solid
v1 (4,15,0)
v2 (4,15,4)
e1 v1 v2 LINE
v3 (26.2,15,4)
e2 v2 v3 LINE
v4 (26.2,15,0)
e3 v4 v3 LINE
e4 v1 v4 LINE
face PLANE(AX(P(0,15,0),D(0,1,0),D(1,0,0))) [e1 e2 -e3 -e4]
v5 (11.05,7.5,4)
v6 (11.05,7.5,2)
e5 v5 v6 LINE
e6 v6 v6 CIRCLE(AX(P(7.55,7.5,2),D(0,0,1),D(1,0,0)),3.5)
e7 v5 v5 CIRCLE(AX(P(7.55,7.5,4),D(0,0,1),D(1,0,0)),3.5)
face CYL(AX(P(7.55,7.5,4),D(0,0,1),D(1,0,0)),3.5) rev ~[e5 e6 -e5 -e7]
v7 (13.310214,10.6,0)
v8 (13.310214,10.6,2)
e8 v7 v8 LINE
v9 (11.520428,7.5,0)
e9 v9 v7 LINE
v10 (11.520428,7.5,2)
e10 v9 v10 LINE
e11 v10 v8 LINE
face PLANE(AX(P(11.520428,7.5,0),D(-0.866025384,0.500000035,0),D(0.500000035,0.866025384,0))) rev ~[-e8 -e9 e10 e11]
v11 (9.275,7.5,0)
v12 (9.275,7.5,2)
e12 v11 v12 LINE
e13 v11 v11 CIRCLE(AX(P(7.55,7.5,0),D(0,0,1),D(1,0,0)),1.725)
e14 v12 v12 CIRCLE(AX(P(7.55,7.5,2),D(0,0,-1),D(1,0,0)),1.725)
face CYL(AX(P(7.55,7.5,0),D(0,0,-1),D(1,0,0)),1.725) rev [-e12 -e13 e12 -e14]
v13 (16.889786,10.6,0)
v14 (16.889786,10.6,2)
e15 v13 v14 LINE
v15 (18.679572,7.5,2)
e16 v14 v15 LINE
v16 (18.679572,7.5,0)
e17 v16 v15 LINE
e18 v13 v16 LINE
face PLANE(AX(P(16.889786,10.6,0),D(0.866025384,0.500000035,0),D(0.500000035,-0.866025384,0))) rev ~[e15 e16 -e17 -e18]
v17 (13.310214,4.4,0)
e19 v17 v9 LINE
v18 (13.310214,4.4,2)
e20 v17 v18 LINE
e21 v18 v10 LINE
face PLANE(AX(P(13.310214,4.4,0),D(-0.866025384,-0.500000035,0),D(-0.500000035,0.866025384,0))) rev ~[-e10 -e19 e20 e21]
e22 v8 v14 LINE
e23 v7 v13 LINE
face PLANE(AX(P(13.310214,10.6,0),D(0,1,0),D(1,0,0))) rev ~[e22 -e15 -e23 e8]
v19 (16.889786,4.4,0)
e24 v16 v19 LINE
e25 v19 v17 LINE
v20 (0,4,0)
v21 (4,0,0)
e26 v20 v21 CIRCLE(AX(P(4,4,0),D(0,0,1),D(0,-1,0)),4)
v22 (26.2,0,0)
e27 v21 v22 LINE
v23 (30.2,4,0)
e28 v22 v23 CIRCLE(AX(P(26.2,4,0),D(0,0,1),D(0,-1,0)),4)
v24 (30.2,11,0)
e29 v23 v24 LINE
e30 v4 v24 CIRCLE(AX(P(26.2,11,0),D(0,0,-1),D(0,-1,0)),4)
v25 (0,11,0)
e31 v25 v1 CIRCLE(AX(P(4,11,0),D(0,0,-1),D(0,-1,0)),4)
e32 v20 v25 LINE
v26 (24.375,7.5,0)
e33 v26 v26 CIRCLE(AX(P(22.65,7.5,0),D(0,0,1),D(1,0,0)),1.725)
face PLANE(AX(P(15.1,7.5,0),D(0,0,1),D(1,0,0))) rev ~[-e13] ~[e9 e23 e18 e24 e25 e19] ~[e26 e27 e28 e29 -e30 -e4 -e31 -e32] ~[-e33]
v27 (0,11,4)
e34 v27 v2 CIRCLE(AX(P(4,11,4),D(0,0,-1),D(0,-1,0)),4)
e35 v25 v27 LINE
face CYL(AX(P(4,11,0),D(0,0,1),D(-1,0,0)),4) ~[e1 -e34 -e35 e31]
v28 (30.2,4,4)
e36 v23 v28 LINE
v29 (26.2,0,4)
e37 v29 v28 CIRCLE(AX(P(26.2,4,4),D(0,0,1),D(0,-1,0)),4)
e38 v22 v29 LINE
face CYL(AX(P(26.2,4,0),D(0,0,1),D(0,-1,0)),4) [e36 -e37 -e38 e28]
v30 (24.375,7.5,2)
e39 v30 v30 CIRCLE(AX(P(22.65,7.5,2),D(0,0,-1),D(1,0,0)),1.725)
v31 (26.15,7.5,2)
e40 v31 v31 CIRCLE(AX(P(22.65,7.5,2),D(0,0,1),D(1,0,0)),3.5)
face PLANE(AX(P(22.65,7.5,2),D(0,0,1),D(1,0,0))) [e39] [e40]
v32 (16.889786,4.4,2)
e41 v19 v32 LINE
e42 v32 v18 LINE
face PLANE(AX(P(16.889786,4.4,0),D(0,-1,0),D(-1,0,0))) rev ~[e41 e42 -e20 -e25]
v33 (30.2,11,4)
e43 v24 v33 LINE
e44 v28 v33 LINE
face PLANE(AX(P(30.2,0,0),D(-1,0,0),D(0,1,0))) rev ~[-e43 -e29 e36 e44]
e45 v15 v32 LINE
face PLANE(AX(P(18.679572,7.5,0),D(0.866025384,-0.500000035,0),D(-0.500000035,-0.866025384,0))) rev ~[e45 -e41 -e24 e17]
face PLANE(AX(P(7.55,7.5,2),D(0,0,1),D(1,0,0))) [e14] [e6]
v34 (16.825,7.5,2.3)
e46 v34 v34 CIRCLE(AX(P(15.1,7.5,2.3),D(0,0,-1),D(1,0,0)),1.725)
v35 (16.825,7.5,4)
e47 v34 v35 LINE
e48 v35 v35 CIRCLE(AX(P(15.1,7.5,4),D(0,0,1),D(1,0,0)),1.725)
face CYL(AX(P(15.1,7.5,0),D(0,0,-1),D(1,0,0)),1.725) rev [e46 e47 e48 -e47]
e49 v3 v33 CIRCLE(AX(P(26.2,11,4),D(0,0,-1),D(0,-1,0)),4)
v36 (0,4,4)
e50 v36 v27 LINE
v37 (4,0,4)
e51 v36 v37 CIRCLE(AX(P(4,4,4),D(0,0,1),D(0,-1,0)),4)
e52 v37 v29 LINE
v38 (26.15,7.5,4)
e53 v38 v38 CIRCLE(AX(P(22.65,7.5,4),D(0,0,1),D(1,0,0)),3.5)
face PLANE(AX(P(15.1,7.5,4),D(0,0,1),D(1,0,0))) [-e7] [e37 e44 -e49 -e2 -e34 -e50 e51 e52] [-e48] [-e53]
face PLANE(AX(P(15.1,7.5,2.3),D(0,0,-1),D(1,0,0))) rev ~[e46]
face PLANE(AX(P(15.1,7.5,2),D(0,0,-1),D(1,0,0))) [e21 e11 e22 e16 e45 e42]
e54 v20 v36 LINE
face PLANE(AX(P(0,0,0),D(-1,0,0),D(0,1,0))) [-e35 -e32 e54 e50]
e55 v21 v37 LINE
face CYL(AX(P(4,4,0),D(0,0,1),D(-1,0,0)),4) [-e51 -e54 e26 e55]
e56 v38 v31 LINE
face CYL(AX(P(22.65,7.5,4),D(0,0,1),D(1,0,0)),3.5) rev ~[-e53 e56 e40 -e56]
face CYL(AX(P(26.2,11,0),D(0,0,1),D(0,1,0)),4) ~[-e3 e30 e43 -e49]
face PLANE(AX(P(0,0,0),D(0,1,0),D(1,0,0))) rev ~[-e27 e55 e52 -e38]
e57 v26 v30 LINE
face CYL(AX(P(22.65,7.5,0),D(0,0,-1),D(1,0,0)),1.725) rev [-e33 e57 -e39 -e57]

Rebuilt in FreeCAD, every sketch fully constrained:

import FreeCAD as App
import Part
import Sketcher
Q = App.Units.Quantity


def edges_at(feature, points):
    """Names of the edges that pass closest to the given points."""
    edges = feature.Shape.Edges
    near = lambda p: min(range(len(edges)), key=lambda i: edges[i].distToShape(Part.Vertex(*p))[0])
    return sorted({f"Edge{near(p) + 1}" for p in points})

doc = App.newDocument("Part")
params = doc.addObject("Spreadsheet::Sheet", "Params")
for row, (alias, value) in enumerate([
    ("sketch1_diameter", "3.45 mm"),
    ("sketch1_height", "15 mm"),
    ("sketch1_width", "30.2 mm"),
    ("pad1_length", "4 mm"),
    ("sketch2_diameter", "7 mm"),
    ("pocket1_length", "2 mm"),
    ("pocket2_length", "2 mm"),
    ("sketch4_diameter", "3.5 mm"),
    ("pad2_length", "0.3 mm"),
    ("fillet_radius", "4 mm"),
], start=1):
    params.set(f"A{row}", alias)
    params.set(f"B{row}", "=" + value)
    params.setAlias(f"B{row}", alias)

body = doc.addObject("PartDesign::Body", "Body")

# Sketch on XY plane
sketch1 = body.newObject("Sketcher::SketchObject", "Sketch")
sketch1.AttachmentSupport = (doc.getObject("XY_Plane"), [""])
sketch1.MapMode = "FlatFace"
sketch1.addGeometry(Part.LineSegment(App.Vector(0, 15, 0), App.Vector(0, 0, 0)), False)
sketch1.addGeometry(Part.LineSegment(App.Vector(0, 0, 0), App.Vector(30.2, 0, 0)), False)
sketch1.addGeometry(Part.LineSegment(App.Vector(30.2, 0, 0), App.Vector(30.2, 15, 0)), False)
sketch1.addGeometry(Part.LineSegment(App.Vector(30.2, 15, 0), App.Vector(0, 15, 0)), False)
sketch1.addGeometry(Part.Circle(App.Vector(7.5, 7.5, 0), App.Vector(0, 0, 1), 1.7), False)
sketch1.addGeometry(Part.Circle(App.Vector(15.1, 7.5, 0), App.Vector(0, 0, 1), 1.7), False)
sketch1.addGeometry(Part.Circle(App.Vector(22.6, 7.5, 0), App.Vector(0, 0, 1), 1.7), False)
sketch1.addConstraint(Sketcher.Constraint("Coincident", 0, 2, 1, 1))
sketch1.addConstraint(Sketcher.Constraint("Coincident", 1, 2, 2, 1))
sketch1.addConstraint(Sketcher.Constraint("Coincident", 2, 2, 3, 1))
sketch1.addConstraint(Sketcher.Constraint("Coincident", 3, 2, 0, 1))
sketch1.addConstraint(Sketcher.Constraint("Vertical", 0))
sketch1.addConstraint(Sketcher.Constraint("Horizontal", 1))
sketch1.addConstraint(Sketcher.Constraint("Vertical", 2))
sketch1.addConstraint(Sketcher.Constraint("Horizontal", 3))
sketch1.addConstraint(Sketcher.Constraint("Coincident", 0, 2, -1, 1))
sketch1.addConstraint(Sketcher.Constraint("Equal", 4, 5))
sketch1.addConstraint(Sketcher.Constraint("Equal", 5, 6))
sketch1.addConstraint(Sketcher.Constraint("Horizontal", 4, 3, 5, 3))
sketch1.addConstraint(Sketcher.Constraint("Horizontal", 5, 3, 6, 3))
sketch1.addConstraint(Sketcher.Constraint("Diameter", 4, Q("3.45 mm")))
sketch1.addConstraint(Sketcher.Constraint("DistanceY", 0, 2, 0, 1, Q("15 mm")))
sketch1.addConstraint(Sketcher.Constraint("DistanceX", 1, 1, 1, 2, Q("30.2 mm")))
sketch1.addConstraint(Sketcher.Constraint("DistanceY", -1, 1, 4, 3, Q("7.5 mm")))
sketch1.addConstraint(Sketcher.Constraint("DistanceX", -1, 1, 5, 3, Q("15.1 mm")))
sketch1.addConstraint(Sketcher.Constraint("DistanceX", 4, 3, 6, 3, Q("15.1 mm")))
sketch1.addConstraint(Sketcher.Constraint("DistanceX", -1, 1, 4, 3, Q("7.55 mm")))
sketch1.setExpression("Constraints[13]", "Params.sketch1_diameter")
sketch1.setExpression("Constraints[14]", "Params.sketch1_height")
sketch1.setExpression("Constraints[15]", "Params.sketch1_width")
pad1 = body.newObject("PartDesign::Pad", "Pad")
pad1.Profile = sketch1
pad1.setExpression("Length", "Params.pad1_length")

# Sketch on XY plane
sketch2 = body.newObject("Sketcher::SketchObject", "Sketch001")
sketch2.AttachmentSupport = (doc.getObject("XY_Plane"), [""])
sketch2.MapMode = "FlatFace"
sketch2.AttachmentOffset = App.Placement(App.Vector(0, 0, 4), App.Rotation())
sketch2.addGeometry(Part.Circle(App.Vector(7.5, 7.5, 0), App.Vector(0, 0, 1), 3.5), False)
sketch2.addGeometry(Part.Circle(App.Vector(22.6, 7.5, 0), App.Vector(0, 0, 1), 3.5), False)
sketch2.addConstraint(Sketcher.Constraint("Equal", 0, 1))
sketch2.addConstraint(Sketcher.Constraint("Horizontal", 0, 3, 1, 3))
sketch2.addConstraint(Sketcher.Constraint("Diameter", 0, Q("7 mm")))
sketch2.addConstraint(Sketcher.Constraint("DistanceY", -1, 1, 0, 3, Q("7.5 mm")))
sketch2.addConstraint(Sketcher.Constraint("DistanceX", 0, 3, 1, 3, Q("15.1 mm")))
sketch2.addConstraint(Sketcher.Constraint("DistanceX", -1, 1, 0, 3, Q("7.55 mm")))
sketch2.setExpression("Constraints[2]", "Params.sketch2_diameter")
pocket1 = body.newObject("PartDesign::Pocket", "Pocket")
pocket1.Profile = sketch2
pocket1.setExpression("Length", "Params.pocket1_length")

# Sketch on XY plane
sketch3 = body.newObject("Sketcher::SketchObject", "Sketch002")
sketch3.AttachmentSupport = (doc.getObject("XY_Plane"), [""])
sketch3.MapMode = "FlatFace"
sketch3.addGeometry(Part.LineSegment(App.Vector(18.7, 7.5, 0), App.Vector(16.9, 4.4, 0)), False)
sketch3.addGeometry(Part.LineSegment(App.Vector(16.9, 4.4, 0), App.Vector(13.3, 4.4, 0)), False)
sketch3.addGeometry(Part.LineSegment(App.Vector(13.3, 4.4, 0), App.Vector(11.5, 7.5, 0)), False)
sketch3.addGeometry(Part.LineSegment(App.Vector(11.5, 7.5, 0), App.Vector(13.3, 10.6, 0)), False)
sketch3.addGeometry(Part.LineSegment(App.Vector(13.3, 10.6, 0), App.Vector(16.9, 10.6, 0)), False)
sketch3.addGeometry(Part.LineSegment(App.Vector(16.9, 10.6, 0), App.Vector(18.7, 7.5, 0)), False)
sketch3.addConstraint(Sketcher.Constraint("Coincident", 0, 2, 1, 1))
sketch3.addConstraint(Sketcher.Constraint("Coincident", 1, 2, 2, 1))
sketch3.addConstraint(Sketcher.Constraint("Coincident", 2, 2, 3, 1))
sketch3.addConstraint(Sketcher.Constraint("Coincident", 3, 2, 4, 1))
sketch3.addConstraint(Sketcher.Constraint("Coincident", 4, 2, 5, 1))
sketch3.addConstraint(Sketcher.Constraint("Coincident", 5, 2, 0, 1))
sketch3.addConstraint(Sketcher.Constraint("Horizontal", 1))
sketch3.addConstraint(Sketcher.Constraint("Horizontal", 4))
sketch3.addConstraint(Sketcher.Constraint("Parallel", 0, 3))
sketch3.addConstraint(Sketcher.Constraint("Parallel", 2, 5))
sketch3.addConstraint(Sketcher.Constraint("Horizontal", 2, 2, 5, 2))
sketch3.addConstraint(Sketcher.Constraint("Vertical", 1, 2, 3, 2))
sketch3.addConstraint(Sketcher.Constraint("Vertical", 0, 2, 4, 2))
sketch3.addConstraint(Sketcher.Constraint("Angle", 0, Q("-120.000002 deg")))
sketch3.addConstraint(Sketcher.Constraint("DistanceY", -1, 1, 0, 2, Q("4.4 mm")))
sketch3.addConstraint(Sketcher.Constraint("DistanceY", -1, 1, 2, 2, Q("7.5 mm")))
sketch3.addConstraint(Sketcher.Constraint("DistanceX", 1, 2, 1, 1, Q("3.579572 mm")))
sketch3.addConstraint(Sketcher.Constraint("DistanceX", -1, 1, 2, 2, Q("11.520428 mm")))
pocket2 = body.newObject("PartDesign::Pocket", "Pocket001")
pocket2.Profile = sketch3
pocket2.setExpression("Length", "Params.pocket2_length")
pocket2.Reversed = True

# Sketch on XY plane
sketch4 = body.newObject("Sketcher::SketchObject", "Sketch003")
sketch4.AttachmentSupport = (doc.getObject("XY_Plane"), [""])
sketch4.MapMode = "FlatFace"
sketch4.AttachmentOffset = App.Placement(App.Vector(0, 0, 2), App.Rotation())
sketch4.addGeometry(Part.Circle(App.Vector(15.1, 7.5, 0), App.Vector(0, 0, 1), 1.8), False)
sketch4.addConstraint(Sketcher.Constraint("Diameter", 0, Q("3.5 mm")))
sketch4.addConstraint(Sketcher.Constraint("DistanceX", -1, 1, 0, 3, Q("15.1 mm")))
sketch4.addConstraint(Sketcher.Constraint("DistanceY", -1, 1, 0, 3, Q("7.5 mm")))
sketch4.setExpression("Constraints[0]", "Params.sketch4_diameter")
pad2 = body.newObject("PartDesign::Pad", "Pad001")
pad2.Profile = sketch4
pad2.setExpression("Length", "Params.pad2_length")
doc.recompute()

fillet = body.newObject("PartDesign::Fillet", "Fillet")
fillet.Base = (pad2, edges_at(pad2, [
    (0, 0, 2),
    (30.2, 0, 2),
    (30.2, 15, 2),
    (0, 15, 2),
]))
fillet.setExpression("Radius", "Params.fillet_radius")

doc.recompute()
